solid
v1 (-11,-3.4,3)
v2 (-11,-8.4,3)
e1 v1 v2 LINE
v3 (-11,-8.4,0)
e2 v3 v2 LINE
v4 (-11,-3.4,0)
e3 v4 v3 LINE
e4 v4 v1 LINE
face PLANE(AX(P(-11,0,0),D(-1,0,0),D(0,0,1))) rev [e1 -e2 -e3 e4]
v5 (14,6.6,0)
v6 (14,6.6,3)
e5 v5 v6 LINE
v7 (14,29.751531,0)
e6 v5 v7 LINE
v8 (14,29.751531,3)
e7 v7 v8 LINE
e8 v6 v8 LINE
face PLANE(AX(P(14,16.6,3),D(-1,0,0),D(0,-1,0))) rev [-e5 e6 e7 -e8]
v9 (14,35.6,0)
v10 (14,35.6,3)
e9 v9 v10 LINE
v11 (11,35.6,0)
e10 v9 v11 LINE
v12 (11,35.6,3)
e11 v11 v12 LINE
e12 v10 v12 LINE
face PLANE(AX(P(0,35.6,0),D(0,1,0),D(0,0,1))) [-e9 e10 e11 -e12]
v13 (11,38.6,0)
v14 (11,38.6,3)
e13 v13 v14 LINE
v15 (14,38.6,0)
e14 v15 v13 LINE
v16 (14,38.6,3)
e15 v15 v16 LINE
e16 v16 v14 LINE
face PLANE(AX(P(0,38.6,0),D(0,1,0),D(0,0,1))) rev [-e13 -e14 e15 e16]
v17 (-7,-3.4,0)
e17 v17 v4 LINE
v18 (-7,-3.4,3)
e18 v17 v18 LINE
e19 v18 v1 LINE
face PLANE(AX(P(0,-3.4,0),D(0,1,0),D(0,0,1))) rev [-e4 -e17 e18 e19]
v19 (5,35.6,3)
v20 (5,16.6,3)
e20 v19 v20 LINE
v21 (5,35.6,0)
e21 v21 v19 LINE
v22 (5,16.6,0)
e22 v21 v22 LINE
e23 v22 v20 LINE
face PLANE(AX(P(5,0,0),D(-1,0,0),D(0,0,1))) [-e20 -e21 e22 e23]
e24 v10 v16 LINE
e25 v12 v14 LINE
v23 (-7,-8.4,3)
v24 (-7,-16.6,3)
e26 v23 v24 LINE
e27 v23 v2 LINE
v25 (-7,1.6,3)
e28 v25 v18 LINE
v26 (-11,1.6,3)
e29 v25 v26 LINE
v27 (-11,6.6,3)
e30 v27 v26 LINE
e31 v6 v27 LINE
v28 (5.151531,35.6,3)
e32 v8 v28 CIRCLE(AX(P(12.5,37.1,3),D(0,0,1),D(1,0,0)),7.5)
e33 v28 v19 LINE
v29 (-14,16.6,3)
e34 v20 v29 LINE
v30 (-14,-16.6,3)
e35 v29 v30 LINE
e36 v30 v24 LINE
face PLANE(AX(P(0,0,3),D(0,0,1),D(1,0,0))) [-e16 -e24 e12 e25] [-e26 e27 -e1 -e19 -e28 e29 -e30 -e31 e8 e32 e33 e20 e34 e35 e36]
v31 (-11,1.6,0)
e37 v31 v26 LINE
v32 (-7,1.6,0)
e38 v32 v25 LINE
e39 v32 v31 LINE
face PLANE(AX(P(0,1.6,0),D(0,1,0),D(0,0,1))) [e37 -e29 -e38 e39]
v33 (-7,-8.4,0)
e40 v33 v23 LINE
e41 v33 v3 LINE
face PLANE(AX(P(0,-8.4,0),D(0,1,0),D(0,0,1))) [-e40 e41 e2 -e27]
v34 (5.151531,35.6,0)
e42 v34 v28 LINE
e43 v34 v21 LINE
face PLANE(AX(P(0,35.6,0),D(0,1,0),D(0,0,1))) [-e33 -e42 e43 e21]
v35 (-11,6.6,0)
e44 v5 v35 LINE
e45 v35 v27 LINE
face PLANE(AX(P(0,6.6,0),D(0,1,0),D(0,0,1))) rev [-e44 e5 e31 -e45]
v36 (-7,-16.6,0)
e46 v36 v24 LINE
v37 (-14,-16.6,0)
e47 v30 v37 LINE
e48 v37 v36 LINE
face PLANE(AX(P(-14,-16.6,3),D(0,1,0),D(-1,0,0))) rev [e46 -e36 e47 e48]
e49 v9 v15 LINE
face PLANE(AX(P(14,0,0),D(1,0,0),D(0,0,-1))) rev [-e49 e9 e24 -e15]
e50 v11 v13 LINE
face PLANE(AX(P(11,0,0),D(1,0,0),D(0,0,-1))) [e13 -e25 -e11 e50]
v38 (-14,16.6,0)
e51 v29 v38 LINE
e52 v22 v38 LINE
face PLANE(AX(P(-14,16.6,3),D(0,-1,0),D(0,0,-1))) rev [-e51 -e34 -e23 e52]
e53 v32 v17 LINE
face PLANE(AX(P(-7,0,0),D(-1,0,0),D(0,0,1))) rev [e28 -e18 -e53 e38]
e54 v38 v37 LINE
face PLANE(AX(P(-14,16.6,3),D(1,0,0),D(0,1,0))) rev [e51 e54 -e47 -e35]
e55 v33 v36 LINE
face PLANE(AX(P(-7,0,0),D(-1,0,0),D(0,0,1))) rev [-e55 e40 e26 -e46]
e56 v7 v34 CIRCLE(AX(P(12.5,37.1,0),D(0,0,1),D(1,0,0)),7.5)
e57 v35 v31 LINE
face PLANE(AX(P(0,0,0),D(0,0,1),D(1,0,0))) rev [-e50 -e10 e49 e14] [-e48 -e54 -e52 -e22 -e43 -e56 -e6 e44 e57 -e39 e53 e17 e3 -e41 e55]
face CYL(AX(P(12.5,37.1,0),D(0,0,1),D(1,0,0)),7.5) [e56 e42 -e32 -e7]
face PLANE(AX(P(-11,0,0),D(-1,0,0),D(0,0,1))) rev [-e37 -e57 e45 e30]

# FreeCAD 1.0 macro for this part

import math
import FreeCAD as App
import Part
import Sketcher
Q = App.Units.Quantity

doc = App.newDocument("Part")
body = doc.addObject("PartDesign::Body", "Body")

# Sketch on XY plane
sketch1 = doc.addObject("Sketcher::SketchObject", "Sketch")
body.addObject(sketch1)
sketch1.AttachmentSupport = (doc.XY_Plane, [""])
sketch1.MapMode = "FlatFace"
sketch1.addGeometry([
    Part.LineSegment(App.Vector(-14, 17, 0), App.Vector(-14, -17, 0)),
    Part.LineSegment(App.Vector(-14, -17, 0), App.Vector(14, -17, 0)),
    Part.LineSegment(App.Vector(14, -17, 0), App.Vector(14, 17, 0)),
    Part.LineSegment(App.Vector(14, 17, 0), App.Vector(-14, 17, 0)),
], False)
sketch1.addConstraint([
    Sketcher.Constraint("Coincident", 0, 2, 1, 1),
    Sketcher.Constraint("Coincident", 1, 2, 2, 1),
    Sketcher.Constraint("Coincident", 2, 2, 3, 1),
    Sketcher.Constraint("Coincident", 3, 2, 0, 1),
    Sketcher.Constraint("Vertical", 0),
    Sketcher.Constraint("Horizontal", 1),
    Sketcher.Constraint("Vertical", 2),
    Sketcher.Constraint("Horizontal", 3),
    Sketcher.Constraint("Symmetric", 0, 2, 2, 2, -1, 1),
    Sketcher.Constraint("DistanceX", 1, 1, 1, 2, Q("28 mm")),
    Sketcher.Constraint("DistanceY", 0, 2, 0, 1, Q("33.2 mm")),
])
pad1 = doc.addObject("PartDesign::Pad", "Pad")
body.addObject(pad1)
pad1.Profile = sketch1
pad1.Length = 3

# Sketch on XY plane
sketch2 = doc.addObject("Sketcher::SketchObject", "Sketch001")
body.addObject(sketch2)
sketch2.AttachmentSupport = (doc.XY_Plane, [""])
sketch2.MapMode = "FlatFace"
sketch2.AttachmentOffset = App.Placement(App.Vector(0, 0, 3), App.Rotation())
sketch2.addGeometry([
    Part.LineSegment(App.Vector(14, 6.6, 0), App.Vector(-11, 6.6, 0)),  # 0
    Part.LineSegment(App.Vector(-11, 6.6, 0), App.Vector(-11, 1.6, 0)),  # 1
    Part.LineSegment(App.Vector(-11, 1.6, 0), App.Vector(-7, 1.6, 0)),  # 2
    Part.LineSegment(App.Vector(-7, 1.6, 0), App.Vector(-7, -3.4, 0)),  # 3
    Part.LineSegment(App.Vector(-7, -3.4, 0), App.Vector(-11, -3.4, 0)),  # 4
    Part.LineSegment(App.Vector(-11, -3.4, 0), App.Vector(-11, -8.4, 0)),  # 5
    Part.LineSegment(App.Vector(-11, -8.4, 0), App.Vector(-7, -8.4, 0)),  # 6
    Part.LineSegment(App.Vector(-7, -8.4, 0), App.Vector(-7, -16.6, 0)),  # 7
    Part.LineSegment(App.Vector(-7, -16.6, 0), App.Vector(14, -16.6, 0)),  # 8
    Part.LineSegment(App.Vector(14, -16.6, 0), App.Vector(14, 6.6, 0)),  # 9
], False)
sketch2.addConstraint([
    Sketcher.Constraint("Coincident", 0, 2, 1, 1),
    Sketcher.Constraint("Coincident", 1, 2, 2, 1),
    Sketcher.Constraint("Coincident", 2, 2, 3, 1),
    Sketcher.Constraint("Coincident", 3, 2, 4, 1),
    Sketcher.Constraint("Coincident", 4, 2, 5, 1),
    Sketcher.Constraint("Coincident", 5, 2, 6, 1),
    Sketcher.Constraint("Coincident", 6, 2, 7, 1),
    Sketcher.Constraint("Coincident", 7, 2, 8, 1),
    Sketcher.Constraint("Coincident", 8, 2, 9, 1),
    Sketcher.Constraint("Coincident", 9, 2, 0, 1),
    Sketcher.Constraint("Horizontal", 0),
    Sketcher.Constraint("Vertical", 1),
    Sketcher.Constraint("Horizontal", 2),
    Sketcher.Constraint("Vertical", 3),
    Sketcher.Constraint("Horizontal", 4),
    Sketcher.Constraint("Vertical", 5),
    Sketcher.Constraint("Horizontal", 6),
    Sketcher.Constraint("Vertical", 7),
    Sketcher.Constraint("Horizontal", 8),
    Sketcher.Constraint("Vertical", 9),
    Sketcher.Constraint("Vertical", 1, 2, 4, 2),
    Sketcher.Constraint("Vertical", 3, 2, 6, 2),
    Sketcher.Constraint("Equal", 1, 3),
    Sketcher.Constraint("Equal", 3, 5),
    Sketcher.Constraint("DistanceX", 0, 2, 0, 1, Q("25 mm")),
    Sketcher.Constraint("DistanceX", 2, 1, 2, 2, Q("4 mm")),
    Sketcher.Constraint("DistanceY", 1, 2, 1, 1, Q("5 mm")),
    Sketcher.Constraint("DistanceY", 7, 2, 7, 1, Q("8.2 mm")),
    Sketcher.Constraint("DistanceX", 0, 2, -1, 1, Q("11 mm")),
    Sketcher.Constraint("DistanceY", -1, 1, 0, 2, Q("6.6 mm")),
])
pocket1 = doc.addObject("PartDesign::Pocket", "Pocket")
body.addObject(pocket1)
pocket1.Profile = sketch2
pocket1.Length = 3

# Sketch on XY plane
sketch3 = doc.addObject("Sketcher::SketchObject", "Sketch002")
body.addObject(sketch3)
sketch3.AttachmentSupport = (doc.XY_Plane, [""])
sketch3.MapMode = "FlatFace"
sketch3.AttachmentOffset = App.Placement(App.Vector(0, 0, 3), App.Rotation())
sketch3.addGeometry([
    Part.LineSegment(App.Vector(5, 35.6, 0), App.Vector(5, 16.6, 0)),  # 0
    Part.LineSegment(App.Vector(5, 16.6, 0), App.Vector(14, 16.6, 0)),  # 1
    Part.LineSegment(App.Vector(14, 16.6, 0), App.Vector(14, 29.75, 0)),  # 2
    Part.ArcOfCircle(Part.Circle(App.Vector(12.5, 37.1, 0), App.Vector(0, 0, 1), 7.5), math.radians(-78), math.radians(0)),  # 3
    Part.ArcOfCircle(Part.Circle(App.Vector(12.5, 37.1, 0), App.Vector(0, 0, 1), 7.5), math.radians(0), math.radians(192)),  # 4
    Part.LineSegment(App.Vector(5.15, 35.6, 0), App.Vector(5, 35.6, 0)),  # 5
    Part.LineSegment(App.Vector(14, 35.6, 0), App.Vector(11, 35.6, 0)),  # 6
    Part.LineSegment(App.Vector(11, 35.6, 0), App.Vector(11, 38.6, 0)),  # 7
    Part.LineSegment(App.Vector(11, 38.6, 0), App.Vector(14, 38.6, 0)),  # 8
    Part.LineSegment(App.Vector(14, 38.6, 0), App.Vector(14, 35.6, 0)),  # 9
], False)
sketch3.addConstraint([
    Sketcher.Constraint("Coincident", 0, 2, 1, 1),
    Sketcher.Constraint("Coincident", 1, 2, 2, 1),
    Sketcher.Constraint("Coincident", 2, 2, 3, 1),
    Sketcher.Constraint("Tangent", 3, 2, 4, 1),
    Sketcher.Constraint("Coincident", 4, 2, 5, 1),
    Sketcher.Constraint("Coincident", 5, 2, 0, 1),
    Sketcher.Constraint("Coincident", 6, 2, 7, 1),
    Sketcher.Constraint("Coincident", 7, 2, 8, 1),
    Sketcher.Constraint("Coincident", 8, 2, 9, 1),
    Sketcher.Constraint("Coincident", 9, 2, 6, 1),
    Sketcher.Constraint("Vertical", 0),
    Sketcher.Constraint("Horizontal", 1),
    Sketcher.Constraint("Vertical", 2),
    Sketcher.Constraint("Horizontal", 5),
    Sketcher.Constraint("Horizontal", 6),
    Sketcher.Constraint("Vertical", 7),
    Sketcher.Constraint("Horizontal", 8),
    Sketcher.Constraint("Vertical", 9),
    Sketcher.Constraint("Equal", 3, 4),
    Sketcher.Constraint("Horizontal", 4, 3, 3, 2),
    Sketcher.Constraint("Horizontal", 5, 2, 6, 2),
    Sketcher.Constraint("Vertical", 2, 2, 8, 2),
    Sketcher.Constraint("Equal", 8, 7),
    Sketcher.Constraint("Radius", 3, Q("7.5 mm")),
    Sketcher.Constraint("DistanceX", 1, 1, 1, 2, Q("9 mm")),
    Sketcher.Constraint("DistanceX", 6, 2, 6, 1, Q("3 mm")),
    Sketcher.Constraint("DistanceY", 0, 2, 0, 1, Q("19 mm")),
    Sketcher.Constraint("DistanceX", -1, 1, 0, 2, Q("5 mm")),
    Sketcher.Constraint("DistanceX", -1, 1, 3, 2, Q("20 mm")),
    Sketcher.Constraint("DistanceY", -1, 1, 3, 3, Q("37.1 mm")),
    Sketcher.Constraint("DistanceY", -1, 1, 0, 2, Q("16.6 mm")),
])
pad2 = doc.addObject("PartDesign::Pad", "Pad001")
body.addObject(pad2)
pad2.Profile = sketch3
pad2.Length = 3
pad2.Reversed = True

doc.recompute()
